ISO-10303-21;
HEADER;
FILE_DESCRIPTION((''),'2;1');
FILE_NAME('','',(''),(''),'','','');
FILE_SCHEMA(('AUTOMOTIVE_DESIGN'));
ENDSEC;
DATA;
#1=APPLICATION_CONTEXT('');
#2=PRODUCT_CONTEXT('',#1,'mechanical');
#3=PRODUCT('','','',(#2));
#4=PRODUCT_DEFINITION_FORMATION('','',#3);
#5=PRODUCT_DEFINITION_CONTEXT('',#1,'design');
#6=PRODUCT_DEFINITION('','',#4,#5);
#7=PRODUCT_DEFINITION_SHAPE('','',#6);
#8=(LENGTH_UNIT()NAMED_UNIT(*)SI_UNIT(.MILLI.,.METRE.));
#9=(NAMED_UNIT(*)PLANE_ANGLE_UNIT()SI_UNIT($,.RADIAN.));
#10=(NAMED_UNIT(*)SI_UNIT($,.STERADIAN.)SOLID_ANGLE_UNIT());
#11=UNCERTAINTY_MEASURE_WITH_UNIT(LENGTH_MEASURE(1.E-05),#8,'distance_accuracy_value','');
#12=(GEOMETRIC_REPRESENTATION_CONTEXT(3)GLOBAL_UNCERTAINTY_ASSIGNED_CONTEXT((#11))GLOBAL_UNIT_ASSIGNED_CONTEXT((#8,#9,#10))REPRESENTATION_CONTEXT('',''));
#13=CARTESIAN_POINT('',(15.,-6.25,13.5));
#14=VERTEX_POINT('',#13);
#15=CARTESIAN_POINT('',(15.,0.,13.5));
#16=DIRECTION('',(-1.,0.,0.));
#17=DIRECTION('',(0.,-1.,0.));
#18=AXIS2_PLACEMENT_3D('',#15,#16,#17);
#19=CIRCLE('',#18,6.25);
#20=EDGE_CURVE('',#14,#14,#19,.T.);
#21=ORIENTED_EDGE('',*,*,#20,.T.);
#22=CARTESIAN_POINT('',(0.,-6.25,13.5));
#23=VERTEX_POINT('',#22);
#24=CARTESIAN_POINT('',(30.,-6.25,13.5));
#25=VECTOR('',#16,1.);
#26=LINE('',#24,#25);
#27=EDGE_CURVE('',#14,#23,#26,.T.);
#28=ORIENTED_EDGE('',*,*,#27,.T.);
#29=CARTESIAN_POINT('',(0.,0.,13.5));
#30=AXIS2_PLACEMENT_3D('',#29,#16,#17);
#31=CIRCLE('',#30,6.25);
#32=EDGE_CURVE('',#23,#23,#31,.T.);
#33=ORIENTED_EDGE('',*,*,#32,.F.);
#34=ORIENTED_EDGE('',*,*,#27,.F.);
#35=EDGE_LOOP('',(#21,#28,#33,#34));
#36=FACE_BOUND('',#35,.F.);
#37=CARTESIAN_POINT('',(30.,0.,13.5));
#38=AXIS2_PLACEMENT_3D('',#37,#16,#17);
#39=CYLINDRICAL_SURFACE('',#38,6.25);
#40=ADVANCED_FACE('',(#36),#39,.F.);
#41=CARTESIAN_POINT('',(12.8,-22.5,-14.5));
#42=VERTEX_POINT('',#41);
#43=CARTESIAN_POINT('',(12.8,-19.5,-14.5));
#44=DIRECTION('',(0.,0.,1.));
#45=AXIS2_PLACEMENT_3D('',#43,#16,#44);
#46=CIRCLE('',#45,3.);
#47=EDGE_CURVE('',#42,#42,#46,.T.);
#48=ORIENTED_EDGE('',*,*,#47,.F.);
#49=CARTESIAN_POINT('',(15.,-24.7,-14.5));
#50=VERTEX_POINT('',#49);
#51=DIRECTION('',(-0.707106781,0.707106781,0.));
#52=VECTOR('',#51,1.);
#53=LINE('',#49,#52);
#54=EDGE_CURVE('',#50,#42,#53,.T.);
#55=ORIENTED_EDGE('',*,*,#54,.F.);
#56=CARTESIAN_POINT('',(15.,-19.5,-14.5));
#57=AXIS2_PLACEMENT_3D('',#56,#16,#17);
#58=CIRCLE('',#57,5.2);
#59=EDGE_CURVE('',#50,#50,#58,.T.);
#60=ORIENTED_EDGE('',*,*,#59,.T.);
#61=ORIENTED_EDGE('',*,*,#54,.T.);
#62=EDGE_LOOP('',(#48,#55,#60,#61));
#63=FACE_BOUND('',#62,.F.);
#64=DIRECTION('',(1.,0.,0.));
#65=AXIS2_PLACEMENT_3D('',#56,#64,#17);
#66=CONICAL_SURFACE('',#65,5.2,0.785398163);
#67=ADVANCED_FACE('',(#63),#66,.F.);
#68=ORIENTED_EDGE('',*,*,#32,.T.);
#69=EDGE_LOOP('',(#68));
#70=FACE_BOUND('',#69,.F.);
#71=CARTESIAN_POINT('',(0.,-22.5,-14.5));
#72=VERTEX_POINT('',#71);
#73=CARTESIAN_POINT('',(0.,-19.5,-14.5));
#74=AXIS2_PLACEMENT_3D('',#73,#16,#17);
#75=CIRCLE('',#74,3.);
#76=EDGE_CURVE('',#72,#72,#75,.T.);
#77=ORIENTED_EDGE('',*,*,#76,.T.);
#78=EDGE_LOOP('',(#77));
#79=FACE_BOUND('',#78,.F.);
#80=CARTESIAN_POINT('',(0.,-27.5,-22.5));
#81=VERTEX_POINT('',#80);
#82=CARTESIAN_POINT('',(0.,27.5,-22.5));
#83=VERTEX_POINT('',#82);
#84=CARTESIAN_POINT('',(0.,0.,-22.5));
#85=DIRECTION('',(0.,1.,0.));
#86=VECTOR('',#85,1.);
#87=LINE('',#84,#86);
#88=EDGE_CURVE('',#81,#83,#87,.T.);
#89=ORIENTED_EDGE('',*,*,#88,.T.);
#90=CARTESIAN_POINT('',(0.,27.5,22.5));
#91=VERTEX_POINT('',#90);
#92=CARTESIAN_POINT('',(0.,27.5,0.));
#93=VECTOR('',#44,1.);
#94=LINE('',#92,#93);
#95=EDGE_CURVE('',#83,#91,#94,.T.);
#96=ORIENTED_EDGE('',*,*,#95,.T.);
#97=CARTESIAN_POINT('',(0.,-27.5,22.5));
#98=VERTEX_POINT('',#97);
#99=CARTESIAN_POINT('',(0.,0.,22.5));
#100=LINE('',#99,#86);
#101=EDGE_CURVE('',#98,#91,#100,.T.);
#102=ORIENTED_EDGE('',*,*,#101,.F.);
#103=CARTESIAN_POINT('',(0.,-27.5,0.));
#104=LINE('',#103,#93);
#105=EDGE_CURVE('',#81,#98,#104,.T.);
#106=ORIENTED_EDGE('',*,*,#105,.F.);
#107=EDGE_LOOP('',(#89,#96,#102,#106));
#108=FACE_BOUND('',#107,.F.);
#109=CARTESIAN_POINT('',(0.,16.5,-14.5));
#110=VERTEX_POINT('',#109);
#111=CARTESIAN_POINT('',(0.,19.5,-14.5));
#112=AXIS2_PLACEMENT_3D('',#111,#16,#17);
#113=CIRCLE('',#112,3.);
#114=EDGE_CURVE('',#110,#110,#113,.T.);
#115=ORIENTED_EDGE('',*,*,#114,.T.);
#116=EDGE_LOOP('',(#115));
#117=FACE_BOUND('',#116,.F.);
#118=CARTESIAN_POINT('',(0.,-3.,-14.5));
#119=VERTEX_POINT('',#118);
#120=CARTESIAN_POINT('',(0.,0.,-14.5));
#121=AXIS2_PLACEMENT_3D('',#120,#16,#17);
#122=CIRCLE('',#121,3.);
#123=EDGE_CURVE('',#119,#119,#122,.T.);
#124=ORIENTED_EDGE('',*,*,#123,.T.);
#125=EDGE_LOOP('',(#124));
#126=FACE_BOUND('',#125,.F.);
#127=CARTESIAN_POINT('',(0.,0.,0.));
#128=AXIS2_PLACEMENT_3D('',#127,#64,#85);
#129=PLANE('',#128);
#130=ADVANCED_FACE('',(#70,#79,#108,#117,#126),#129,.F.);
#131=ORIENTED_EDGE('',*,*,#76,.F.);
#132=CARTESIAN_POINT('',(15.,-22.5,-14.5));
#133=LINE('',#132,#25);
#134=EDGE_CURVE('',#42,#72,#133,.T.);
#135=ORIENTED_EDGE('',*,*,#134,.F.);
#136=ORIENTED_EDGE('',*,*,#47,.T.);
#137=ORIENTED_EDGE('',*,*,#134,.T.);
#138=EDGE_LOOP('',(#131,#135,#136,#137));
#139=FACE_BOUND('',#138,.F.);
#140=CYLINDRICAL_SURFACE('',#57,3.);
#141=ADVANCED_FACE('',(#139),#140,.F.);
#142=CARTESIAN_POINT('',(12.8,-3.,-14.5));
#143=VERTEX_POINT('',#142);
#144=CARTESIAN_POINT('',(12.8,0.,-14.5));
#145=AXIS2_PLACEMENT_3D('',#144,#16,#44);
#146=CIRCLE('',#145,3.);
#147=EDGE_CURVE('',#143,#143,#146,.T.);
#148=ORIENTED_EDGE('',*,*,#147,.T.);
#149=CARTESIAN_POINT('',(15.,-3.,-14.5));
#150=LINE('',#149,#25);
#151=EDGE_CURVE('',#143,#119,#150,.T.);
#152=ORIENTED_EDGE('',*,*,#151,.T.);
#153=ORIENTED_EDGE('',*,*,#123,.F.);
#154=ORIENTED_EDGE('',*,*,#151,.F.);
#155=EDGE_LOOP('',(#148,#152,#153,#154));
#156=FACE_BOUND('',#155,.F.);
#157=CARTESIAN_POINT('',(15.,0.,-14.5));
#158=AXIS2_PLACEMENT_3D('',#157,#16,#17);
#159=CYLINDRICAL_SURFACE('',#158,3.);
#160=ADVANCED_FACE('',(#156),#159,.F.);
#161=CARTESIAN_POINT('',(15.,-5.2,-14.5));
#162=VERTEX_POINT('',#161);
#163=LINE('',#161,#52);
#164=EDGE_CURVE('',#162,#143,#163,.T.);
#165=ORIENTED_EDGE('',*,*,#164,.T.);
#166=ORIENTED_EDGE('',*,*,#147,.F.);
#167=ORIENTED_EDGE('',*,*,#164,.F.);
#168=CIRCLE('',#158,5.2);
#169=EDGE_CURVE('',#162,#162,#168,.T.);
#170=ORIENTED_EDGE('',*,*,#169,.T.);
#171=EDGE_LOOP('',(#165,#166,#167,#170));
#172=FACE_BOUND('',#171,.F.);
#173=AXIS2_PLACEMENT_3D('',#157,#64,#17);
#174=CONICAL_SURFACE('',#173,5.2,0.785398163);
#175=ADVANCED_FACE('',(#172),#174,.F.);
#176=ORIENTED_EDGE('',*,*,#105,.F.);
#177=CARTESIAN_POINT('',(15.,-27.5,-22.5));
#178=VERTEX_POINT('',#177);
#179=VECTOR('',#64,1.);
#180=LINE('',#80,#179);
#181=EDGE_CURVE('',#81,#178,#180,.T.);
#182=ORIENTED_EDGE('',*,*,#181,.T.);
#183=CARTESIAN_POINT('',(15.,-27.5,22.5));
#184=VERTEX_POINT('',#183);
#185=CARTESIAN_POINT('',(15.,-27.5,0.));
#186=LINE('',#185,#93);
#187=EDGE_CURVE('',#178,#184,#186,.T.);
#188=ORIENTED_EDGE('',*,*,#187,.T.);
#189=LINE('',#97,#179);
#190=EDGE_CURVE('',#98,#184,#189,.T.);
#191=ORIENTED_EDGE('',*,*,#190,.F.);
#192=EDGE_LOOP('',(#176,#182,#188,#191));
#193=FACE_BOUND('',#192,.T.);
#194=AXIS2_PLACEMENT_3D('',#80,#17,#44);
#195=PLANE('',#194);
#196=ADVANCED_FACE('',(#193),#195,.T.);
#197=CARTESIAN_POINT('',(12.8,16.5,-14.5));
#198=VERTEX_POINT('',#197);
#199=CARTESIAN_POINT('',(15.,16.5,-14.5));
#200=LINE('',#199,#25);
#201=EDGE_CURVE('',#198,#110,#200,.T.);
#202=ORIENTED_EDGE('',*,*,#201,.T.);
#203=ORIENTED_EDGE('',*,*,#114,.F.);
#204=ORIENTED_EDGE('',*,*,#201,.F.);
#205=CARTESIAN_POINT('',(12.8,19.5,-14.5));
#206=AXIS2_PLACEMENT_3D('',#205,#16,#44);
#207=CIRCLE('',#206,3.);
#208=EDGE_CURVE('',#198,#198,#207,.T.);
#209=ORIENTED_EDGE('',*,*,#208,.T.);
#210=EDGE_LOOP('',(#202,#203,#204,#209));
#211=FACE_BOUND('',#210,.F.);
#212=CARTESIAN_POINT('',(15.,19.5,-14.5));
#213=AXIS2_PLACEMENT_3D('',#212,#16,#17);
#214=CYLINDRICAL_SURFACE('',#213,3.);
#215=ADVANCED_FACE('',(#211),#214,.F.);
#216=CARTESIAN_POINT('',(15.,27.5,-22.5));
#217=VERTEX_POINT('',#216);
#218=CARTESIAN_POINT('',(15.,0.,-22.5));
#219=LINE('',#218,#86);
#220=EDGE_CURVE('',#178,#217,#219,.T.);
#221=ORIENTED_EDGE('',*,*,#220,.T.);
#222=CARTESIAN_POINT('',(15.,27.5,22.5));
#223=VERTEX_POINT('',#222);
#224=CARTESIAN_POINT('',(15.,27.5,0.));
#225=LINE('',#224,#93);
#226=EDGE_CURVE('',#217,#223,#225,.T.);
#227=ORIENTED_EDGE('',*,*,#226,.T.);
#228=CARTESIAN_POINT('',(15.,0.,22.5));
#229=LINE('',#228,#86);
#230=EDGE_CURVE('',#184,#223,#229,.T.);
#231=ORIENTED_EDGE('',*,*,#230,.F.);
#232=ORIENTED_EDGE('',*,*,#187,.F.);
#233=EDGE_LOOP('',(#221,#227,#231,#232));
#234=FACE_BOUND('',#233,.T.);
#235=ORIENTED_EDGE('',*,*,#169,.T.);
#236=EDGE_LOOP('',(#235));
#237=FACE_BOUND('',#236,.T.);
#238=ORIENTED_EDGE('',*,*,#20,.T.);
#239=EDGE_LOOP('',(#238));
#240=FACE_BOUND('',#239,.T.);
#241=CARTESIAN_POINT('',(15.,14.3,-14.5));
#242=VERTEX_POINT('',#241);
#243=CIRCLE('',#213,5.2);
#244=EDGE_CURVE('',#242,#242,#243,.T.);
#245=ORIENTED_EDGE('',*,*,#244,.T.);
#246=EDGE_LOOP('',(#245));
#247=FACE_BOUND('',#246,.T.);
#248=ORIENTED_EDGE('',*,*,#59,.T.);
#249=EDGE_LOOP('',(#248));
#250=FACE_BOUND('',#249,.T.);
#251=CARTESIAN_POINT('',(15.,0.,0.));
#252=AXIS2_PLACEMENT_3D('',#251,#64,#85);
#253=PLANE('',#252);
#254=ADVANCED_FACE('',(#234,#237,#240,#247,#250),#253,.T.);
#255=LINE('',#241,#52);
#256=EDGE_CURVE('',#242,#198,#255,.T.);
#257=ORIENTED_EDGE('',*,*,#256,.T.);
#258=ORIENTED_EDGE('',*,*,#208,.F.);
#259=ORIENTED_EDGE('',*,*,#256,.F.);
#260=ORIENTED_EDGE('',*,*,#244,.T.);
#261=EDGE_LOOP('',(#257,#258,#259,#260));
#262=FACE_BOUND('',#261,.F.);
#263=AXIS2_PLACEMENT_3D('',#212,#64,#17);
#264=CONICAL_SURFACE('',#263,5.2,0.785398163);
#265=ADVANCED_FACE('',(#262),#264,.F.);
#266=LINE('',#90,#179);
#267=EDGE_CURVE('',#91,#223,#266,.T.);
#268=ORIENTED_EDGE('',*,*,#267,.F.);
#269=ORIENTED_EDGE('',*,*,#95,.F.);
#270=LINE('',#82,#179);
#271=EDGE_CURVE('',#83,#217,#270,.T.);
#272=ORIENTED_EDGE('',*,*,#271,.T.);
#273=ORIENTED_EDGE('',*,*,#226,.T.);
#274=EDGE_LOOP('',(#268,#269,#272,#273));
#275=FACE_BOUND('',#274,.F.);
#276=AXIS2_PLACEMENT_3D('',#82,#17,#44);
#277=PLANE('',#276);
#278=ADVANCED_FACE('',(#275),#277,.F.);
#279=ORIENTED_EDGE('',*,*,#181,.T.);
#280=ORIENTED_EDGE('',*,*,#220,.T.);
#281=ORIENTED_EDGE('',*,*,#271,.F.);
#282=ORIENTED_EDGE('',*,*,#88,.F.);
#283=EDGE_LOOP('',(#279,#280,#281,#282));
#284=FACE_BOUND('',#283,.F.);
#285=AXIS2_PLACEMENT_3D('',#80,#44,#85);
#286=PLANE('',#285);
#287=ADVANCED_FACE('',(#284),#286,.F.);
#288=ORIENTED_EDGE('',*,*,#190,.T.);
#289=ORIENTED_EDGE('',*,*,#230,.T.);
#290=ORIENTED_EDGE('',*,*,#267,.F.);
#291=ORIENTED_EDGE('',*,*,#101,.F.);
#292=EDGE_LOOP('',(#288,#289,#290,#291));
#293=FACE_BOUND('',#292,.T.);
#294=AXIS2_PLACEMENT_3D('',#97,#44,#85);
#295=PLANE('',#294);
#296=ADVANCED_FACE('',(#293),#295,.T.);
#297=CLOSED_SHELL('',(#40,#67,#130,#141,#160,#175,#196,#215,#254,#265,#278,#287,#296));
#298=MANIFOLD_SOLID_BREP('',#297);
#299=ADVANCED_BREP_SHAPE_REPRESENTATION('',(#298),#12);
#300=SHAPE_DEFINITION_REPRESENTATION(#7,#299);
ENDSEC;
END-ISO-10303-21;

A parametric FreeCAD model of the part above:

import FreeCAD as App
import Part
import Sketcher
from FreeCAD import Vector


def add_polygon(sketch, points):
    """Adds a closed chain of lines whose ends are joined by coincident constraints."""
    first, n = sketch.GeometryCount, len(points)
    for a, b in zip(points, points[1:] + points[:1]):
        sketch.addGeometry(Part.LineSegment(App.Vector(*a, 0), App.Vector(*b, 0)), False)
    for i in range(n):
        sketch.addConstraint(Sketcher.Constraint("Coincident", first + i, 2, first + (i + 1) % n, 1))

doc = App.newDocument("Part")
body = doc.addObject("PartDesign::Body", "Body")

sketch1 = doc.addObject("Sketcher::SketchObject", "Sketch")
body.addObject(sketch1)
sketch1.AttachmentSupport = (doc.YZ_Plane, [""])
sketch1.MapMode = "FlatFace"
add_polygon(sketch1, [(-27.5, 22.5), (-27.5, -22.5), (27.5, -22.5), (27.5, 22.5)])
sketch1.addConstraint([
    Sketcher.Constraint("Vertical", 0),
    Sketcher.Constraint("Horizontal", 1),
    Sketcher.Constraint("Vertical", 2),
    Sketcher.Constraint("Horizontal", 3),
    Sketcher.Constraint("Symmetric", 0, 2, 2, 2, -1, 1),
    Sketcher.Constraint("DistanceX", 1, 1, 1, 2, 55.0),
    Sketcher.Constraint("DistanceY", 0, 2, 0, 1, 45.0),
])
pad1 = doc.addObject("PartDesign::Pad", "Pad")
body.addObject(pad1)
pad1.Profile = sketch1
pad1.Length = 15

sketch2 = doc.addObject("Sketcher::SketchObject", "Sketch001")
body.addObject(sketch2)
sketch2.AttachmentSupport = (doc.YZ_Plane, [""])
sketch2.MapMode = "FlatFace"
sketch2.AttachmentOffset = App.Placement(Vector(0, 0, 15), App.Rotation())
sketch2.addGeometry(Part.Circle(Vector(0, 13.5, 0), Vector(0, 0, 1), 6.25), False)
sketch2.addConstraint([
    Sketcher.Constraint("PointOnObject", 0, 3, -2),
    Sketcher.Constraint("Diameter", 0, 12.5),
    Sketcher.Constraint("DistanceY", -1, 1, 0, 3, 13.5),
])
doc.recompute()
hole = doc.addObject("PartDesign::Hole", "Hole")
body.addObject(hole)
hole.Profile = sketch2
hole.ThreadType = "None"
hole.Diameter = 12.5
hole.DepthType = "Dimension"
hole.Depth = 15
hole.DrillPoint = "Flat"

sketch3 = doc.addObject("Sketcher::SketchObject", "Sketch002")
body.addObject(sketch3)
sketch3.AttachmentSupport = (doc.YZ_Plane, [""])
sketch3.MapMode = "FlatFace"
sketch3.AttachmentOffset = App.Placement(Vector(0, 0, 15), App.Rotation())
sketch3.addGeometry([
    Part.Circle(Vector(-19.5, -14.5, 0), Vector(0, 0, 1), 3),
    Part.Circle(Vector(0, -14.5, 0), Vector(0, 0, 1), 3),
    Part.Circle(Vector(19.5, -14.5, 0), Vector(0, 0, 1), 3),
], False)
sketch3.addConstraint([
    Sketcher.Constraint("Equal", 0, 1),
    Sketcher.Constraint("Equal", 1, 2),
    Sketcher.Constraint("Symmetric", 0, 3, 2, 3, -2),
    Sketcher.Constraint("PointOnObject", 1, 3, -2),
    Sketcher.Constraint("Horizontal", 0, 3, 1, 3),
    Sketcher.Constraint("Diameter", 0, 6.0),
    Sketcher.Constraint("DistanceX", 0, 3, 2, 3, 39.0),
    Sketcher.Constraint("DistanceY", 0, 3, -1, 1, 14.5),
])
doc.recompute()
hole2 = doc.addObject("PartDesign::Hole", "Hole001")
body.addObject(hole2)
hole2.Profile = sketch3
hole2.ThreadType = "None"
hole2.Diameter = 6
hole2.DepthType = "Dimension"
hole2.Depth = 15
hole2.DrillPoint = "Flat"
hole2.HoleCutType = "Countersink"
hole2.HoleCutDiameter = 10.4
hole2.HoleCutCountersinkAngle = 90

doc.recompute()
